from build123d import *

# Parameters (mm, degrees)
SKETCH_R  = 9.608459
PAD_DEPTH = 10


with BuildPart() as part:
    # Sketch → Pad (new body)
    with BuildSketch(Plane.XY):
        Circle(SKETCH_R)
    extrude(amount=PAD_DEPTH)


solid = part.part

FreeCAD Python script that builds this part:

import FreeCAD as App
import Part
import Sketcher
from FreeCAD import Vector

doc = App.newDocument("Part")
body = doc.addObject("PartDesign::Body", "Body")

sketch1 = doc.addObject("Sketcher::SketchObject", "Sketch")
body.addObject(sketch1)
sketch1.AttachmentSupport = (doc.XY_Plane, [""])
sketch1.MapMode = "FlatFace"
sketch1.addGeometry(Part.Circle(Vector(0, 0, 0), Vector(0, 0, 1), 10), False)
sketch1.addConstraint(Sketcher.Constraint("Coincident", 0, 3, -1, 1))
sketch1.addConstraint(Sketcher.Constraint("Diameter", 0, 19.216918))
pad1 = doc.addObject("PartDesign::Pad", "Pad")
body.addObject(pad1)
pad1.Profile = sketch1
pad1.Length = 10

doc.recompute()
